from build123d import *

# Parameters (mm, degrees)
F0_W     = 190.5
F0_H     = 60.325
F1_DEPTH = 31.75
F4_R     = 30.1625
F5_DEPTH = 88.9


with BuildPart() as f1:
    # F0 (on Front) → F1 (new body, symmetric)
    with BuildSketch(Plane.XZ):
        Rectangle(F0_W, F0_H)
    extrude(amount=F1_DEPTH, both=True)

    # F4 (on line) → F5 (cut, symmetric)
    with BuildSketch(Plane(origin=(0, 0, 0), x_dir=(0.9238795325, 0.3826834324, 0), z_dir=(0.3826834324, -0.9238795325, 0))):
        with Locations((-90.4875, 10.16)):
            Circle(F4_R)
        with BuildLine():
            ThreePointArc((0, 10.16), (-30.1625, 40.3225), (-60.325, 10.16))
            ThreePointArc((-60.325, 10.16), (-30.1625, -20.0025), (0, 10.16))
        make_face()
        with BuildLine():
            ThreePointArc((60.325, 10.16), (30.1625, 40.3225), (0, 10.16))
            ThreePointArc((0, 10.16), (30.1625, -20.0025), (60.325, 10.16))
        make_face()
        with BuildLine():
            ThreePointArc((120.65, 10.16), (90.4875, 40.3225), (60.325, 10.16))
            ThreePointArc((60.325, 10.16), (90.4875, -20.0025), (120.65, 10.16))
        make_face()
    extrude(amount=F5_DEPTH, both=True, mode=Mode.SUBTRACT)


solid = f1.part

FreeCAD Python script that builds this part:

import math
import FreeCAD as App
import Part
import Sketcher

V = App.Vector
Q = App.Units.Quantity

doc = App.newDocument("Part")
body = doc.addObject("PartDesign::Body", "Body")
body.AllowCompound = True

sketch1 = body.newObject("Sketcher::SketchObject", "Sketch")
sketch1.AttachmentSupport = (doc.getObject("XZ_Plane"), [""])
sketch1.MapMode = "FlatFace"
sketch1.addGeometry([
    Part.LineSegment(V(-95, 30, 0), V(-95, -30, 0)),
    Part.LineSegment(V(-95, -30, 0), V(95, -30, 0)),
    Part.LineSegment(V(95, -30, 0), V(95, 30, 0)),
    Part.LineSegment(V(95, 30, 0), V(-95, 30, 0)),
], False)
sketch1.addConstraint([
    Sketcher.Constraint("Coincident", 0, 2, 1, 1),
    Sketcher.Constraint("Coincident", 1, 2, 2, 1),
    Sketcher.Constraint("Coincident", 2, 2, 3, 1),
    Sketcher.Constraint("Coincident", 3, 2, 0, 1),
    Sketcher.Constraint("Vertical", 0),
    Sketcher.Constraint("Horizontal", 1),
    Sketcher.Constraint("Vertical", 2),
    Sketcher.Constraint("Horizontal", 3),
    Sketcher.Constraint("Symmetric", 0, 2, 2, 2, -1, 1),
    Sketcher.Constraint("DistanceX", 1, 1, 1, 2, Q("7.5 in")),
    Sketcher.Constraint("DistanceY", 0, 2, 0, 1, Q("2.375 in")),
])
pad1 = body.newObject("PartDesign::Pad", "Pad")
pad1.Profile = sketch1
pad1.Length = Q("2.5 in")
pad1.Midplane = True

sketch2 = body.newObject("Sketcher::SketchObject", "Sketch001")
sketch2.Placement = App.Placement(V(0, 0, 0), App.Rotation(V(0.923879532, 0.382683432, 0), V(0, 0, 0.999999999), V(0.382683432, -0.923879532, 0), "ZXY"))
sketch2.addGeometry([
    Part.Circle(V(-90, 10, 0), V(0, 0, 1), 30),
    Part.ArcOfCircle(Part.Circle(V(-30, 10, 0), V(0, 0, 1), 30), math.radians(180), math.radians(360)),
    Part.ArcOfCircle(Part.Circle(V(-30, 10, 0), V(0, 0, 1), 30), math.radians(0), math.radians(180)),
    Part.ArcOfCircle(Part.Circle(V(30, 10, 0), V(0, 0, 1), 30), math.radians(180), math.radians(360)),
    Part.ArcOfCircle(Part.Circle(V(30, 10, 0), V(0, 0, 1), 30), math.radians(0), math.radians(180)),
    Part.Circle(V(90, 10, 0), V(0, 0, 1), 30),
], False)
sketch2.addConstraint([
    Sketcher.Constraint("Tangent", 1, 1, 2, 2),
    Sketcher.Constraint("Coincident", 2, 1, 1, 2),
    Sketcher.Constraint("Tangent", 3, 1, 4, 2),
    Sketcher.Constraint("Coincident", 4, 1, 3, 2),
    Sketcher.Constraint("Coincident", 3, 1, 2, 1),
    Sketcher.Constraint("Equal", 0, 1),
    Sketcher.Constraint("Equal", 2, 3),
    Sketcher.Constraint("Equal", 4, 5),
    Sketcher.Constraint("Symmetric", 1, 3, 3, 3, -2),
    Sketcher.Constraint("Symmetric", 0, 3, 5, 3, -2),
    Sketcher.Constraint("Horizontal", 0, 3, 1, 3),
    Sketcher.Constraint("Horizontal", 5, 3, 1, 1),
    Sketcher.Constraint("Horizontal", 1, 1, 2, 1),
    Sketcher.Constraint("Horizontal", 3, 1, 4, 1),
    Sketcher.Constraint("Diameter", 0, Q("2.375 in")),
    Sketcher.Constraint("DistanceY", -1, 1, 0, 3, Q("0.4 in")),
    Sketcher.Constraint("DistanceX", 0, 3, 3, 3, Q("4.75 in")),
])
pocket1 = body.newObject("PartDesign::Pocket", "Pocket")
pocket1.Profile = sketch2
pocket1.Length = Q("7 in")
pocket1.Midplane = True

doc.recompute()
